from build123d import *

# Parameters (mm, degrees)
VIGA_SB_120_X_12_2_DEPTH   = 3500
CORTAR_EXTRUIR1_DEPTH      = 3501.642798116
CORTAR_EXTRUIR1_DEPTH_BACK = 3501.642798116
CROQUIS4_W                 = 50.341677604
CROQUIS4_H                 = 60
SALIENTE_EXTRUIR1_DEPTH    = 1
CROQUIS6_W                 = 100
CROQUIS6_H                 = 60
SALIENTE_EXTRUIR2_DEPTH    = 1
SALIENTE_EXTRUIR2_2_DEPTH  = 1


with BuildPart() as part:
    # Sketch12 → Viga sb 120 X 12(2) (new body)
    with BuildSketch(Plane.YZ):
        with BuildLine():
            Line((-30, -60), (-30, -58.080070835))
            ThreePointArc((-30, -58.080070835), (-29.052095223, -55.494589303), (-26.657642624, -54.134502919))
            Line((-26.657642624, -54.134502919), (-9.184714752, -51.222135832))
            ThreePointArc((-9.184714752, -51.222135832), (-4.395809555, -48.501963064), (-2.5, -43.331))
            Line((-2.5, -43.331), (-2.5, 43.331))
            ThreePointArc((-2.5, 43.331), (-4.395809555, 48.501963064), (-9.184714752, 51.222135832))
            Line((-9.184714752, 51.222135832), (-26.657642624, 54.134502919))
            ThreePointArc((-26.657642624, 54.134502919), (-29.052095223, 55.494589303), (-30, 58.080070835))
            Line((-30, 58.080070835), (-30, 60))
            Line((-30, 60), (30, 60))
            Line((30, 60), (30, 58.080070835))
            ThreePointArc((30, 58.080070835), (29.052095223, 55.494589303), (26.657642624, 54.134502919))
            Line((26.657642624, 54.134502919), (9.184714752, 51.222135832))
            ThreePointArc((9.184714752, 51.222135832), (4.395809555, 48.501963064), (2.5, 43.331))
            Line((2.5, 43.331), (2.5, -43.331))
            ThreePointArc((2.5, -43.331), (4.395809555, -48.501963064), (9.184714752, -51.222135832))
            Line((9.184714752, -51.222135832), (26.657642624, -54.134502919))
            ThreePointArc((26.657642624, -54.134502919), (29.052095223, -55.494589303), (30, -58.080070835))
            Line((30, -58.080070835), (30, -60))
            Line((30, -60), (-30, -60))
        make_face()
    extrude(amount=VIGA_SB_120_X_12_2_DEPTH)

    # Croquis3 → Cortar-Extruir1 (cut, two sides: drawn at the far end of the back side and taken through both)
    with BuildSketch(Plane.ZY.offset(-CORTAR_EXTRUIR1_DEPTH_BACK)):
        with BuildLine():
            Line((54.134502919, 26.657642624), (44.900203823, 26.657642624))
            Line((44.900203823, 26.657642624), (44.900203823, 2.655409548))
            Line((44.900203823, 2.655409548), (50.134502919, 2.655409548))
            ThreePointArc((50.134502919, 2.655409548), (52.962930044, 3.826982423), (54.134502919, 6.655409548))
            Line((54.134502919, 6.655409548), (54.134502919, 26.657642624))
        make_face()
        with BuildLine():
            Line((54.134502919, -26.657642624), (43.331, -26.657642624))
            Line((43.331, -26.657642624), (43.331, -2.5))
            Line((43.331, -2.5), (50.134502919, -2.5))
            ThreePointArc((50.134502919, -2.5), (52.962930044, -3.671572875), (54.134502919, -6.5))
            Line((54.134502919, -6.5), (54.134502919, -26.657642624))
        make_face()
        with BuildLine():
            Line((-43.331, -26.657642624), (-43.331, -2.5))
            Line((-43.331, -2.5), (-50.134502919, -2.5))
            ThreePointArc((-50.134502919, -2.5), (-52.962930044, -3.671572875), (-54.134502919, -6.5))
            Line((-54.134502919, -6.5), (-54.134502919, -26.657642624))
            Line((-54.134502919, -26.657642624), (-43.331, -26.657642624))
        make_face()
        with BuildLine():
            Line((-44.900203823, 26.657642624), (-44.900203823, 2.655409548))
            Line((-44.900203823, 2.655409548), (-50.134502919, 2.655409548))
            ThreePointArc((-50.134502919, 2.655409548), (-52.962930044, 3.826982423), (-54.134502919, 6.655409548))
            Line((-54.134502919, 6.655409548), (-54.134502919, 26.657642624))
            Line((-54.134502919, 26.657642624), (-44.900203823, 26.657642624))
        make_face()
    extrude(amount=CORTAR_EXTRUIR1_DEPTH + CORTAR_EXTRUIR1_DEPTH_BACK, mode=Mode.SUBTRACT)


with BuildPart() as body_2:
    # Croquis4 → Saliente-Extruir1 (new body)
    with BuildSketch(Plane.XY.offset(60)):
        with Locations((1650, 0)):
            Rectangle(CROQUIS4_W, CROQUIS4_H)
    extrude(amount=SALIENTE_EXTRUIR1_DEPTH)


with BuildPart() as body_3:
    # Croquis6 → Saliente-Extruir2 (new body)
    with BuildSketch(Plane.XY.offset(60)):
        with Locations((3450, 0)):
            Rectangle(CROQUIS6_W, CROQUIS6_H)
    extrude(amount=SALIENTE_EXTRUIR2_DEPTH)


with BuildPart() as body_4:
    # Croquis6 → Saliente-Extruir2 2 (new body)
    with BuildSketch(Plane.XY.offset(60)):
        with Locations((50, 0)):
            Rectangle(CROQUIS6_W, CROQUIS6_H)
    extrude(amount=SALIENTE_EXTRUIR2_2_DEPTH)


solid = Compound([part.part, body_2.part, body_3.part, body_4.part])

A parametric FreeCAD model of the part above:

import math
import FreeCAD as App
import Part
import Sketcher

V = App.Vector
Q = App.Units.Quantity

doc = App.newDocument("Part")
body = doc.addObject("PartDesign::Body", "Body")

# Sketch on YZ plane
sketch1 = body.newObject("Sketcher::SketchObject", "Sketch")
sketch1.AttachmentSupport = (doc.getObject("YZ_Plane"), [""])
sketch1.MapMode = "FlatFace"
sketch1.addGeometry([
    Part.LineSegment(V(-30, -58.1, 0), V(-30, -60, 0)),  # 0
    Part.LineSegment(V(-30, -60, 0), V(30, -60, 0)),  # 1
    Part.LineSegment(V(30, -60, 0), V(30, -58.1, 0)),  # 2
    Part.ArcOfCircle(Part.Circle(V(26, -58.1, 0), V(0, 0, 1), 4), math.radians(0), math.radians(81)),  # 3
    Part.LineSegment(V(26.7, -54.1, 0), V(9.2, -51.2, 0)),  # 4
    Part.ArcOfCircle(Part.Circle(V(10.5, -43.3, 0), V(0, 0, 1), 8), math.radians(180), math.radians(261)),  # 5
    Part.LineSegment(V(2.5, -43.3, 0), V(2.5, 43.3, 0)),  # 6
    Part.ArcOfCircle(Part.Circle(V(10.5, 43.3, 0), V(0, 0, 1), 8), math.radians(99), math.radians(180)),  # 7
    Part.LineSegment(V(9.2, 51.2, 0), V(26.7, 54.1, 0)),  # 8
    Part.ArcOfCircle(Part.Circle(V(26, 58.1, 0), V(0, 0, 1), 4), math.radians(-81), math.radians(0)),  # 9
    Part.LineSegment(V(30, 58.1, 0), V(30, 60, 0)),  # 10
    Part.LineSegment(V(30, 60, 0), V(-30, 60, 0)),  # 11
    Part.LineSegment(V(-30, 60, 0), V(-30, 58.1, 0)),  # 12
    Part.ArcOfCircle(Part.Circle(V(-26, 58.1, 0), V(0, 0, 1), 4), math.radians(180), math.radians(261)),  # 13
    Part.LineSegment(V(-26.7, 54.1, 0), V(-9.2, 51.2, 0)),  # 14
    Part.ArcOfCircle(Part.Circle(V(-10.5, 43.3, 0), V(0, 0, 1), 8), math.radians(0), math.radians(81)),  # 15
    Part.LineSegment(V(-2.5, 43.3, 0), V(-2.5, -43.3, 0)),  # 16
    Part.ArcOfCircle(Part.Circle(V(-10.5, -43.3, 0), V(0, 0, 1), 8), math.radians(-81), math.radians(0)),  # 17
    Part.LineSegment(V(-9.2, -51.2, 0), V(-26.7, -54.1, 0)),  # 18
    Part.ArcOfCircle(Part.Circle(V(-26, -58.1, 0), V(0, 0, 1), 4), math.radians(99), math.radians(180)),  # 19
], False)
sketch1.addConstraint([
    Sketcher.Constraint("Coincident", 0, 2, 1, 1),
    Sketcher.Constraint("Coincident", 1, 2, 2, 1),
    Sketcher.Constraint("Tangent", 2, 2, 3, 1),
    Sketcher.Constraint("Tangent", 3, 2, 4, 1),
    Sketcher.Constraint("Tangent", 4, 2, 5, 2),
    Sketcher.Constraint("Tangent", 5, 1, 6, 1),
    Sketcher.Constraint("Tangent", 6, 2, 7, 2),
    Sketcher.Constraint("Tangent", 7, 1, 8, 1),
    Sketcher.Constraint("Tangent", 8, 2, 9, 1),
    Sketcher.Constraint("Tangent", 9, 2, 10, 1),
    Sketcher.Constraint("Coincident", 10, 2, 11, 1),
    Sketcher.Constraint("Coincident", 11, 2, 12, 1),
    Sketcher.Constraint("Tangent", 12, 2, 13, 1),
    Sketcher.Constraint("Tangent", 13, 2, 14, 1),
    Sketcher.Constraint("Tangent", 14, 2, 15, 2),
    Sketcher.Constraint("Tangent", 15, 1, 16, 1),
    Sketcher.Constraint("Tangent", 16, 2, 17, 2),
    Sketcher.Constraint("Tangent", 17, 1, 18, 1),
    Sketcher.Constraint("Tangent", 18, 2, 19, 1),
    Sketcher.Constraint("Tangent", 19, 2, 0, 1),
    Sketcher.Constraint("Vertical", 0),
    Sketcher.Constraint("Horizontal", 1),
    Sketcher.Constraint("Vertical", 2),
    Sketcher.Constraint("Vertical", 6),
    Sketcher.Constraint("Vertical", 10),
    Sketcher.Constraint("Horizontal", 11),
    Sketcher.Constraint("Vertical", 12),
    Sketcher.Constraint("Vertical", 16),
    Sketcher.Constraint("Equal", 5, 7),
    Sketcher.Constraint("Equal", 3, 9),
    Sketcher.Constraint("Equal", 9, 13),
    Sketcher.Constraint("Equal", 7, 15),
    Sketcher.Constraint("Equal", 15, 17),
    Sketcher.Constraint("Equal", 13, 19),
    Sketcher.Constraint("Symmetric", 3, 3, 13, 3, -1, 1),
    Sketcher.Constraint("Symmetric", 5, 3, 15, 3, -1, 1),
    Sketcher.Constraint("Symmetric", 9, 3, 19, 3, -1, 1),
    Sketcher.Constraint("Symmetric", 9, 3, 13, 3, -2),
    Sketcher.Constraint("Parallel", 8, 18),
    Sketcher.Constraint("Horizontal", 7, 3, 15, 3),
    Sketcher.Constraint("Equal", 2, 10),
    Sketcher.Constraint("Radius", 3, Q("4 mm")),
    Sketcher.Constraint("Radius", 5, Q("8 mm")),
    Sketcher.Constraint("DistanceX", 1, 1, 1, 2, Q("60 mm")),
    Sketcher.Constraint("DistanceY", 0, 2, -1, 1, Q("60 mm")),
    Sketcher.Constraint("DistanceX", 15, 3, 7, 3, Q("21 mm")),
    Sketcher.Constraint("DistanceY", 6, 1, 6, 2, Q("86.662 mm")),
    Sketcher.Constraint("DistanceY", 0, 2, 0, 1, Q("1.919929 mm")),
])
pad1 = body.newObject("PartDesign::Pad", "Pad")
pad1.Profile = sketch1
pad1.Length = 3500

# Sketch on YZ plane
sketch2 = body.newObject("Sketcher::SketchObject", "Sketch001")
sketch2.AttachmentSupport = (doc.getObject("YZ_Plane"), [""])
sketch2.MapMode = "FlatFace"
sketch2.addGeometry([
    Part.LineSegment(V(26.7, 54.1, 0), V(26.7, 44.9, 0)),  # 0
    Part.LineSegment(V(26.7, 44.9, 0), V(2.7, 44.9, 0)),  # 1
    Part.LineSegment(V(2.7, 44.9, 0), V(2.7, 50.1, 0)),  # 2
    Part.ArcOfCircle(Part.Circle(V(6.7, 50.1, 0), V(0, 0, 1), 4), math.radians(90), math.radians(180)),  # 3
    Part.LineSegment(V(6.7, 54.1, 0), V(26.7, 54.1, 0)),  # 4
    Part.LineSegment(V(-26.7, 43.3, 0), V(-26.7, 54.1, 0)),  # 5
    Part.LineSegment(V(-26.7, 54.1, 0), V(-6.5, 54.1, 0)),  # 6
    Part.ArcOfCircle(Part.Circle(V(-6.5, 50.1, 0), V(0, 0, 1), 4), math.radians(0), math.radians(90)),  # 7
    Part.LineSegment(V(-2.5, 50.1, 0), V(-2.5, 43.3, 0)),  # 8
    Part.LineSegment(V(-2.5, 43.3, 0), V(-26.7, 43.3, 0)),  # 9
    Part.LineSegment(V(-26.7, -43.3, 0), V(-2.5, -43.3, 0)),  # 10
    Part.LineSegment(V(-2.5, -43.3, 0), V(-2.5, -50.1, 0)),  # 11
    Part.ArcOfCircle(Part.Circle(V(-6.5, -50.1, 0), V(0, 0, 1), 4), math.radians(-90), math.radians(0)),  # 12
    Part.LineSegment(V(-6.5, -54.1, 0), V(-26.7, -54.1, 0)),  # 13
    Part.LineSegment(V(-26.7, -54.1, 0), V(-26.7, -43.3, 0)),  # 14
    Part.LineSegment(V(2.7, -44.9, 0), V(26.7, -44.9, 0)),  # 15
    Part.LineSegment(V(26.7, -44.9, 0), V(26.7, -54.1, 0)),  # 16
    Part.LineSegment(V(26.7, -54.1, 0), V(6.7, -54.1, 0)),  # 17
    Part.ArcOfCircle(Part.Circle(V(6.7, -50.1, 0), V(0, 0, 1), 4), math.radians(180), math.radians(270)),  # 18
    Part.LineSegment(V(2.7, -50.1, 0), V(2.7, -44.9, 0)),  # 19
], False)
sketch2.addConstraint([
    Sketcher.Constraint("Coincident", 0, 2, 1, 1),
    Sketcher.Constraint("Coincident", 1, 2, 2, 1),
    Sketcher.Constraint("Tangent", 2, 2, 3, 2),
    Sketcher.Constraint("Tangent", 3, 1, 4, 1),
    Sketcher.Constraint("Coincident", 4, 2, 0, 1),
    Sketcher.Constraint("Coincident", 5, 2, 6, 1),
    Sketcher.Constraint("Tangent", 6, 2, 7, 2),
    Sketcher.Constraint("Tangent", 7, 1, 8, 1),
    Sketcher.Constraint("Coincident", 8, 2, 9, 1),
    Sketcher.Constraint("Coincident", 9, 2, 5, 1),
    Sketcher.Constraint("Coincident", 10, 2, 11, 1),
    Sketcher.Constraint("Tangent", 11, 2, 12, 2),
    Sketcher.Constraint("Tangent", 12, 1, 13, 1),
    Sketcher.Constraint("Coincident", 13, 2, 14, 1),
    Sketcher.Constraint("Coincident", 14, 2, 10, 1),
    Sketcher.Constraint("Coincident", 15, 2, 16, 1),
    Sketcher.Constraint("Coincident", 16, 2, 17, 1),
    Sketcher.Constraint("Tangent", 17, 2, 18, 2),
    Sketcher.Constraint("Tangent", 18, 1, 19, 1),
    Sketcher.Constraint("Coincident", 19, 2, 15, 1),
    Sketcher.Constraint("Vertical", 0),
    Sketcher.Constraint("Horizontal", 1),
    Sketcher.Constraint("Vertical", 2),
    Sketcher.Constraint("Horizontal", 4),
    Sketcher.Constraint("Vertical", 5),
    Sketcher.Constraint("Horizontal", 6),
    Sketcher.Constraint("Vertical", 8),
    Sketcher.Constraint("Horizontal", 9),
    Sketcher.Constraint("Horizontal", 10),
    Sketcher.Constraint("Vertical", 11),
    Sketcher.Constraint("Horizontal", 13),
    Sketcher.Constraint("Vertical", 14),
    Sketcher.Constraint("Horizontal", 15),
    Sketcher.Constraint("Vertical", 16),
    Sketcher.Constraint("Horizontal", 17),
    Sketcher.Constraint("Vertical", 19),
    Sketcher.Constraint("Equal", 3, 7),
    Sketcher.Constraint("Equal", 7, 12),
    Sketcher.Constraint("Equal", 12, 18),
    Sketcher.Constraint("Symmetric", 4, 2, 13, 2, -1, 1),
    Sketcher.Constraint("Symmetric", 5, 2, 16, 2, -1, 1),
    Sketcher.Constraint("Symmetric", 4, 2, 5, 2, -2),
    Sketcher.Constraint("Symmetric", 8, 2, 10, 2, -1),
    Sketcher.Constraint("Symmetric", 1, 2, 19, 2, -1),
    Sketcher.Constraint("Radius", 3, Q("4 mm")),
    Sketcher.Constraint("DistanceX", 7, 3, -1, 1, Q("6.5 mm")),
    Sketcher.Constraint("DistanceY", 0, 2, 0, 1, Q("9.234299 mm")),
    Sketcher.Constraint("DistanceY", -1, 1, 8, 2, Q("43.331 mm")),
    Sketcher.Constraint("DistanceX", 1, 2, 1, 1, Q("24.002233 mm")),
    Sketcher.Constraint("DistanceX", 6, 1, 6, 2, Q("20.157643 mm")),
    Sketcher.Constraint("DistanceY", 5, 1, 5, 2, Q("10.803503 mm")),
])
pocket1 = body.newObject("PartDesign::Pocket", "Pocket")
pocket1.Profile = sketch2
pocket1.Type = "ThroughAll"
pocket1.Midplane = True
body2 = doc.addObject("PartDesign::Body", "Body001")

# Sketch on XY plane
sketch3 = body2.newObject("Sketcher::SketchObject", "Sketch002")
sketch3.AttachmentSupport = (doc.getObject("XY_Plane001"), [""])
sketch3.MapMode = "FlatFace"
sketch3.AttachmentOffset = App.Placement(V(0, 0, 60), App.Rotation())
sketch3.addGeometry([
    Part.LineSegment(V(1625, 30, 0), V(1625, -30, 0)),
    Part.LineSegment(V(1625, -30, 0), V(1675, -30, 0)),
    Part.LineSegment(V(1675, -30, 0), V(1675, 30, 0)),
    Part.LineSegment(V(1675, 30, 0), V(1625, 30, 0)),
], False)
sketch3.addConstraint([
    Sketcher.Constraint("Coincident", 0, 2, 1, 1),
    Sketcher.Constraint("Coincident", 1, 2, 2, 1),
    Sketcher.Constraint("Coincident", 2, 2, 3, 1),
    Sketcher.Constraint("Coincident", 3, 2, 0, 1),
    Sketcher.Constraint("Vertical", 0),
    Sketcher.Constraint("Horizontal", 1),
    Sketcher.Constraint("Vertical", 2),
    Sketcher.Constraint("Horizontal", 3),
    Sketcher.Constraint("DistanceY", 0, 2, 0, 1, Q("60 mm")),
    Sketcher.Constraint("DistanceY", 0, 2, -1, 1, Q("30 mm")),
    Sketcher.Constraint("DistanceX", 1, 1, 1, 2, Q("50.341678 mm")),
    Sketcher.Constraint("DistanceX", -1, 1, 0, 2, Q("1624.829161 mm")),
])
pad2 = body2.newObject("PartDesign::Pad", "Pad001")
pad2.Profile = sketch3
pad2.Length = 1
body3 = doc.addObject("PartDesign::Body", "Body002")

# Sketch on XY plane
sketch4 = body3.newObject("Sketcher::SketchObject", "Sketch003")
sketch4.AttachmentSupport = (doc.getObject("XY_Plane002"), [""])
sketch4.MapMode = "FlatFace"
sketch4.AttachmentOffset = App.Placement(V(0, 0, 60), App.Rotation())
sketch4.addGeometry([
    Part.LineSegment(V(3400, 30, 0), V(3400, -30, 0)),
    Part.LineSegment(V(3400, -30, 0), V(3500, -30, 0)),
    Part.LineSegment(V(3500, -30, 0), V(3500, 30, 0)),
    Part.LineSegment(V(3500, 30, 0), V(3400, 30, 0)),
], False)
sketch4.addConstraint([
    Sketcher.Constraint("Coincident", 0, 2, 1, 1),
    Sketcher.Constraint("Coincident", 1, 2, 2, 1),
    Sketcher.Constraint("Coincident", 2, 2, 3, 1),
    Sketcher.Constraint("Coincident", 3, 2, 0, 1),
    Sketcher.Constraint("Vertical", 0),
    Sketcher.Constraint("Horizontal", 1),
    Sketcher.Constraint("Vertical", 2),
    Sketcher.Constraint("Horizontal", 3),
    Sketcher.Constraint("DistanceX", 1, 1, 1, 2, Q("100 mm")),
    Sketcher.Constraint("DistanceY", 0, 2, 0, 1, Q("60 mm")),
    Sketcher.Constraint("DistanceX", -1, 1, 0, 2, Q("3400 mm")),
    Sketcher.Constraint("DistanceY", 0, 2, -1, 1, Q("30 mm")),
])
pad3 = body3.newObject("PartDesign::Pad", "Pad002")
pad3.Profile = sketch4
pad3.Length = 1
body4 = doc.addObject("PartDesign::Body", "Body003")

# Sketch on XY plane
sketch5 = body4.newObject("Sketcher::SketchObject", "Sketch004")
sketch5.AttachmentSupport = (doc.getObject("XY_Plane003"), [""])
sketch5.MapMode = "FlatFace"
sketch5.AttachmentOffset = App.Placement(V(0, 0, 60), App.Rotation())
sketch5.addGeometry([
    Part.LineSegment(V(0, 30, 0), V(0, -30, 0)),
    Part.LineSegment(V(0, -30, 0), V(100, -30, 0)),
    Part.LineSegment(V(100, -30, 0), V(100, 30, 0)),
    Part.LineSegment(V(100, 30, 0), V(0, 30, 0)),
], False)
sketch5.addConstraint([
    Sketcher.Constraint("Coincident", 0, 2, 1, 1),
    Sketcher.Constraint("Coincident", 1, 2, 2, 1),
    Sketcher.Constraint("Coincident", 2, 2, 3, 1),
    Sketcher.Constraint("Coincident", 3, 2, 0, 1),
    Sketcher.Constraint("Vertical", 0),
    Sketcher.Constraint("Horizontal", 1),
    Sketcher.Constraint("Vertical", 2),
    Sketcher.Constraint("Horizontal", 3),
    Sketcher.Constraint("Symmetric", 0, 2, 3, 2, -1, 1),
    Sketcher.Constraint("DistanceX", 1, 1, 1, 2, Q("100 mm")),
    Sketcher.Constraint("DistanceY", 0, 2, 0, 1, Q("60 mm")),
])
pad4 = body4.newObject("PartDesign::Pad", "Pad003")
pad4.Profile = sketch5
pad4.Length = 1

doc.recompute()
